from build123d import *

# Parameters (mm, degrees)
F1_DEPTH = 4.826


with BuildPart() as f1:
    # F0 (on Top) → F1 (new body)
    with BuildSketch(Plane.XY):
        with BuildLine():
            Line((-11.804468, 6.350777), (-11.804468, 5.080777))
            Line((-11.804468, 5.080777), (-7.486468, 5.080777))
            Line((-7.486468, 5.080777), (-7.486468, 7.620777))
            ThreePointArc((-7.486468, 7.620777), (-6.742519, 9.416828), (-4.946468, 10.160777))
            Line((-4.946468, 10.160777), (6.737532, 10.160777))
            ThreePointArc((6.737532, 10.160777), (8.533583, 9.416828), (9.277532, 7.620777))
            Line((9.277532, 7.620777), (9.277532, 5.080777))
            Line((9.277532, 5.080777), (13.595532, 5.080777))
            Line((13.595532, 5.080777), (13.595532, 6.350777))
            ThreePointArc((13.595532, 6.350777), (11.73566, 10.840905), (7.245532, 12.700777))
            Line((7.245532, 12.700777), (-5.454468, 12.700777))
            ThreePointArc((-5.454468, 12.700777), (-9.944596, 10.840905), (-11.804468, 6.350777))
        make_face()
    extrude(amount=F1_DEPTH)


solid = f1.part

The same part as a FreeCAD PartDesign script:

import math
import FreeCAD as App
import Part
import Sketcher
from FreeCAD import Vector
Q = App.Units.Quantity

doc = App.newDocument("Part")
params = doc.addObject("Spreadsheet::Sheet", "Params")
for row, (alias, value) in enumerate([
    ("sketch1_radius", "0.1 in"),
    ("sketch1_radius2", "0.25 in"),
    ("sketch1_width", "0.5 in"),
    ("sketch1_height", "0.1 in"),
    ("sketch1_width2", "0.17 in"),
    ("pad1_length", "0.19 in"),
], start=1):
    params.set(f"A{row}", alias)
    params.set(f"B{row}", "=" + value)
    params.setAlias(f"B{row}", alias)

body = doc.addObject("PartDesign::Body", "Body")

sketch1 = body.newObject("Sketcher::SketchObject", "Sketch")
sketch1.AttachmentSupport = (doc.getObject("XY_Plane"), [""])
sketch1.MapMode = "FlatFace"
sketch1.addGeometry([
    Part.LineSegment(Vector(-11.8, 6.4, 0), Vector(-11.8, 5.1, 0)),
    Part.LineSegment(Vector(-11.8, 5.1, 0), Vector(-7.5, 5.1, 0)),
    Part.LineSegment(Vector(-7.5, 5.1, 0), Vector(-7.5, 7.6, 0)),
    Part.ArcOfCircle(Part.Circle(Vector(-4.9, 7.6, 0), Vector(0, 0, 1), 2.5), math.radians(90), math.radians(180)),
    Part.LineSegment(Vector(-4.9, 10.2, 0), Vector(6.7, 10.2, 0)),
    Part.ArcOfCircle(Part.Circle(Vector(6.7, 7.6, 0), Vector(0, 0, 1), 2.5), math.radians(0), math.radians(90)),
    Part.LineSegment(Vector(9.3, 7.6, 0), Vector(9.3, 5.1, 0)),
    Part.LineSegment(Vector(9.3, 5.1, 0), Vector(13.6, 5.1, 0)),
    Part.LineSegment(Vector(13.6, 5.1, 0), Vector(13.6, 6.4, 0)),
    Part.ArcOfCircle(Part.Circle(Vector(7.2, 6.4, 0), Vector(0, 0, 1), 6.4), math.radians(0), math.radians(90)),
    Part.LineSegment(Vector(7.2, 12.7, 0), Vector(-5.5, 12.7, 0)),
    Part.ArcOfCircle(Part.Circle(Vector(-5.5, 6.4, 0), Vector(0, 0, 1), 6.4), math.radians(90), math.radians(180)),
], False)
sketch1.addConstraint([
    Sketcher.Constraint("Coincident", 0, 2, 1, 1),
    Sketcher.Constraint("Coincident", 1, 2, 2, 1),
    Sketcher.Constraint("Tangent", 2, 2, 3, 2),
    Sketcher.Constraint("Tangent", 3, 1, 4, 1),
    Sketcher.Constraint("Tangent", 4, 2, 5, 2),
    Sketcher.Constraint("Tangent", 5, 1, 6, 1),
    Sketcher.Constraint("Coincident", 6, 2, 7, 1),
    Sketcher.Constraint("Coincident", 7, 2, 8, 1),
    Sketcher.Constraint("Tangent", 8, 2, 9, 1),
    Sketcher.Constraint("Tangent", 9, 2, 10, 1),
    Sketcher.Constraint("Tangent", 10, 2, 11, 1),
    Sketcher.Constraint("Tangent", 11, 2, 0, 1),
    Sketcher.Constraint("Vertical", 0),
    Sketcher.Constraint("Horizontal", 1),
    Sketcher.Constraint("Vertical", 2),
    Sketcher.Constraint("Horizontal", 4),
    Sketcher.Constraint("Vertical", 6),
    Sketcher.Constraint("Horizontal", 7),
    Sketcher.Constraint("Vertical", 8),
    Sketcher.Constraint("Horizontal", 10),
    Sketcher.Constraint("Equal", 3, 5),
    Sketcher.Constraint("Equal", 9, 11),
    Sketcher.Constraint("Horizontal", 1, 2, 6, 2),
    Sketcher.Constraint("Equal", 1, 7),
    Sketcher.Constraint("Radius", 3, Q("0.1 in")),
    Sketcher.Constraint("Radius", 9, Q("0.25 in")),
    Sketcher.Constraint("DistanceX", 10, 2, 10, 1, Q("0.5 in")),
    Sketcher.Constraint("DistanceY", 2, 1, 2, 2, Q("0.1 in")),
    Sketcher.Constraint("DistanceX", 1, 1, 1, 2, Q("0.17 in")),
    Sketcher.Constraint("DistanceY", 0, 2, 0, 1, Q("0.05 in")),
    Sketcher.Constraint("DistanceX", -1, 1, 5, 3, Q("6.737531 mm")),
    Sketcher.Constraint("DistanceY", -1, 1, 3, 3, Q("7.620776 mm")),
])
sketch1.setExpression("Constraints[24]", "Params.sketch1_radius")
sketch1.setExpression("Constraints[25]", "Params.sketch1_radius2")
sketch1.setExpression("Constraints[26]", "Params.sketch1_width")
sketch1.setExpression("Constraints[27]", "Params.sketch1_height")
sketch1.setExpression("Constraints[28]", "Params.sketch1_width2")
pad1 = body.newObject("PartDesign::Pad", "Pad")
pad1.Profile = sketch1
pad1.setExpression("Length", "Params.pad1_length")

doc.recompute()
